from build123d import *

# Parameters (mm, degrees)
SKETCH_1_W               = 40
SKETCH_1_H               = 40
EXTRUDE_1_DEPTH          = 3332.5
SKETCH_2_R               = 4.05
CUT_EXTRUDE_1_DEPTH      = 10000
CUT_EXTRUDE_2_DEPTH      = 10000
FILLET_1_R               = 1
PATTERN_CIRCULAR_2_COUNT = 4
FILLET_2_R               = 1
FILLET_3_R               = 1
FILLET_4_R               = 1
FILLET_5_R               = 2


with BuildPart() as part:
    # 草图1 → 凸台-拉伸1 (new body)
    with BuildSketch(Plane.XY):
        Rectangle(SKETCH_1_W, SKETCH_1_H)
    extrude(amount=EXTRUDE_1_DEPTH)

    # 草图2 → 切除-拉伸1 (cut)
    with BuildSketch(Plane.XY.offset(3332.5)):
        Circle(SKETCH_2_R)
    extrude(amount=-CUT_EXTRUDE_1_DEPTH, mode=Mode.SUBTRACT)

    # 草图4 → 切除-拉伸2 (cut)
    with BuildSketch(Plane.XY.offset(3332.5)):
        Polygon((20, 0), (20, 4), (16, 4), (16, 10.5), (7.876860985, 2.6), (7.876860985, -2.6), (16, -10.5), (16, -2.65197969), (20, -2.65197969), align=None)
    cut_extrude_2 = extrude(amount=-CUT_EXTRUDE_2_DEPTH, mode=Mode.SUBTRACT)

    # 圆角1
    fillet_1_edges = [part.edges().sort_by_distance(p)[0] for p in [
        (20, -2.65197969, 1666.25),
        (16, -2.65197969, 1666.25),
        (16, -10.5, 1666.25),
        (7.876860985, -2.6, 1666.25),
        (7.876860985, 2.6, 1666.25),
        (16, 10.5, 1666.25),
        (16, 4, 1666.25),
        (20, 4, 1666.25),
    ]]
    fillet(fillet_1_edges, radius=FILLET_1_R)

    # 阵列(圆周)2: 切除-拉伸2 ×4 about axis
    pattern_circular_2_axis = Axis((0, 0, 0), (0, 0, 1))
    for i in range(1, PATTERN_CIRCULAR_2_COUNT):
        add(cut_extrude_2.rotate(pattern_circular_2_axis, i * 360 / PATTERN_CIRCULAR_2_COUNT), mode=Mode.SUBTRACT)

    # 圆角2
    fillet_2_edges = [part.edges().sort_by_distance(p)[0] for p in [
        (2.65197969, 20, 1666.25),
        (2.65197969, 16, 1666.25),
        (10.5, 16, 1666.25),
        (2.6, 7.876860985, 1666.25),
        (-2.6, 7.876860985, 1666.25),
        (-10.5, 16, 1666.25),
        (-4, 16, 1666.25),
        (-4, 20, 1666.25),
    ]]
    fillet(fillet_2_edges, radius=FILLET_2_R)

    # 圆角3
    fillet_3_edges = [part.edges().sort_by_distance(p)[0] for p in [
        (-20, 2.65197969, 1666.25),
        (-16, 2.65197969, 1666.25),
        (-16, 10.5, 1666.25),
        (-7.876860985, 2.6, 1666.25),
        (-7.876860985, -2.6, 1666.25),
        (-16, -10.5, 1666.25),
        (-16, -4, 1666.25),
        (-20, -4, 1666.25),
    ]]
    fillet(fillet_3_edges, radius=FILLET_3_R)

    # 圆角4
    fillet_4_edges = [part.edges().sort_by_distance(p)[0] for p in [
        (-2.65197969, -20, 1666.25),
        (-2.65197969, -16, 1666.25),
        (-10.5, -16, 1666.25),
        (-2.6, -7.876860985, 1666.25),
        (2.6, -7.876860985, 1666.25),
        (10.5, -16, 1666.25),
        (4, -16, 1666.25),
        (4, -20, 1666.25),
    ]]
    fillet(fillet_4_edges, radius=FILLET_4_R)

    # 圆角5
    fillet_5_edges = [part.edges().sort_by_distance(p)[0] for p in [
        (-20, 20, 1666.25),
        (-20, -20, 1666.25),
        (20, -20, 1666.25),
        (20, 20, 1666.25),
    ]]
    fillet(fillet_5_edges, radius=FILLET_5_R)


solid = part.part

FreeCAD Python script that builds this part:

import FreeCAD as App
import Part
import Sketcher


def edges_at(feature, points):
    """Names of the edges that pass closest to the given points."""
    edges = feature.Shape.Edges
    near = lambda p: min(range(len(edges)), key=lambda i: edges[i].distToShape(Part.Vertex(*p))[0])
    return sorted({f"Edge{near(p) + 1}" for p in points})

doc = App.newDocument("Part")
params = doc.addObject("Spreadsheet::Sheet", "Params")
for row, (alias, value) in enumerate([
    ("sketch1_width", "40 mm"),
    ("pad1_length", "3332.5 mm"),
    ("sketch2_diameter", "8.1 mm"),
    ("pocket1_length", "10000 mm"),
    ("sketch3_width", "4 mm"),
    ("sketch3_height", "6.5 mm"),
    ("sketch3_height2", "5.2 mm"),
    ("pocket2_length", "10000 mm"),
    ("fillet_radius", "1 mm"),
    ("fillet2_radius", "1 mm"),
    ("fillet3_radius", "1 mm"),
    ("fillet4_radius", "1 mm"),
    ("fillet5_radius", "2 mm"),
], start=1):
    params.set(f"A{row}", alias)
    params.set(f"B{row}", "=" + value)
    params.setAlias(f"B{row}", alias)

body = doc.addObject("PartDesign::Body", "Body")

# Sketch on XY plane
sketch1 = doc.addObject("Sketcher::SketchObject", "Sketch")
body.addObject(sketch1)
sketch1.AttachmentSupport = (doc.XY_Plane, [""])
sketch1.MapMode = "FlatFace"
sketch1.addGeometry(Part.LineSegment(App.Vector(-20, 20, 0), App.Vector(-20, -20, 0)), False)
sketch1.addGeometry(Part.LineSegment(App.Vector(-20, -20, 0), App.Vector(20, -20, 0)), False)
sketch1.addGeometry(Part.LineSegment(App.Vector(20, -20, 0), App.Vector(20, 20, 0)), False)
sketch1.addGeometry(Part.LineSegment(App.Vector(20, 20, 0), App.Vector(-20, 20, 0)), False)
sketch1.addConstraint(Sketcher.Constraint("Coincident", 0, 2, 1, 1))
sketch1.addConstraint(Sketcher.Constraint("Coincident", 1, 2, 2, 1))
sketch1.addConstraint(Sketcher.Constraint("Coincident", 2, 2, 3, 1))
sketch1.addConstraint(Sketcher.Constraint("Coincident", 3, 2, 0, 1))
sketch1.addConstraint(Sketcher.Constraint("Vertical", 0))
sketch1.addConstraint(Sketcher.Constraint("Horizontal", 1))
sketch1.addConstraint(Sketcher.Constraint("Vertical", 2))
sketch1.addConstraint(Sketcher.Constraint("Horizontal", 3))
sketch1.addConstraint(Sketcher.Constraint("Symmetric", 0, 2, 2, 2, -1, 1))
sketch1.addConstraint(Sketcher.Constraint("Equal", 3, 0))
sketch1.addConstraint(Sketcher.Constraint("DistanceX", 1, 1, 1, 2, 40.0))
sketch1.setExpression("Constraints[10]", "Params.sketch1_width")
pad1 = doc.addObject("PartDesign::Pad", "Pad")
body.addObject(pad1)
pad1.Profile = sketch1
pad1.setExpression("Length", "Params.pad1_length")

# Sketch on XY plane
sketch2 = doc.addObject("Sketcher::SketchObject", "Sketch001")
body.addObject(sketch2)
sketch2.AttachmentSupport = (doc.XY_Plane, [""])
sketch2.MapMode = "FlatFace"
sketch2.AttachmentOffset = App.Placement(App.Vector(0, 0, 3332.5), App.Rotation())
sketch2.addGeometry(Part.Circle(App.Vector(0, 0, 0), App.Vector(0, 0, 1), 4), False)
sketch2.addConstraint(Sketcher.Constraint("Coincident", 0, 3, -1, 1))
sketch2.addConstraint(Sketcher.Constraint("Diameter", 0, 8.1))
sketch2.setExpression("Constraints[1]", "Params.sketch2_diameter")
pocket1 = doc.addObject("PartDesign::Pocket", "Pocket")
body.addObject(pocket1)
pocket1.Profile = sketch2
pocket1.setExpression("Length", "Params.pocket1_length")

# Sketch on XY plane
sketch3 = doc.addObject("Sketcher::SketchObject", "Sketch002")
body.addObject(sketch3)
sketch3.AttachmentSupport = (doc.XY_Plane, [""])
sketch3.MapMode = "FlatFace"
sketch3.AttachmentOffset = App.Placement(App.Vector(0, 0, 3332.5), App.Rotation())
sketch3.addGeometry(Part.LineSegment(App.Vector(20, 4, 0), App.Vector(16, 4, 0)), False)
sketch3.addGeometry(Part.LineSegment(App.Vector(16, 4, 0), App.Vector(16, 10.5, 0)), False)
sketch3.addGeometry(Part.LineSegment(App.Vector(16, 10.5, 0), App.Vector(7.9, 2.6, 0)), False)
sketch3.addGeometry(Part.LineSegment(App.Vector(7.9, 2.6, 0), App.Vector(7.9, -2.6, 0)), False)
sketch3.addGeometry(Part.LineSegment(App.Vector(7.9, -2.6, 0), App.Vector(16, -10.5, 0)), False)
sketch3.addGeometry(Part.LineSegment(App.Vector(16, -10.5, 0), App.Vector(16, -2.7, 0)), False)
sketch3.addGeometry(Part.LineSegment(App.Vector(16, -2.7, 0), App.Vector(20, -2.7, 0)), False)
sketch3.addGeometry(Part.LineSegment(App.Vector(20, -2.7, 0), App.Vector(20, 4, 0)), False)
sketch3.addConstraint(Sketcher.Constraint("Coincident", 0, 2, 1, 1))
sketch3.addConstraint(Sketcher.Constraint("Coincident", 1, 2, 2, 1))
sketch3.addConstraint(Sketcher.Constraint("Coincident", 2, 2, 3, 1))
sketch3.addConstraint(Sketcher.Constraint("Coincident", 3, 2, 4, 1))
sketch3.addConstraint(Sketcher.Constraint("Coincident", 4, 2, 5, 1))
sketch3.addConstraint(Sketcher.Constraint("Coincident", 5, 2, 6, 1))
sketch3.addConstraint(Sketcher.Constraint("Coincident", 6, 2, 7, 1))
sketch3.addConstraint(Sketcher.Constraint("Coincident", 7, 2, 0, 1))
sketch3.addConstraint(Sketcher.Constraint("Horizontal", 0))
sketch3.addConstraint(Sketcher.Constraint("Vertical", 1))
sketch3.addConstraint(Sketcher.Constraint("Vertical", 3))
sketch3.addConstraint(Sketcher.Constraint("Vertical", 5))
sketch3.addConstraint(Sketcher.Constraint("Horizontal", 6))
sketch3.addConstraint(Sketcher.Constraint("Vertical", 7))
sketch3.addConstraint(Sketcher.Constraint("Symmetric", 1, 2, 4, 2, -1))
sketch3.addConstraint(Sketcher.Constraint("Equal", 2, 4))
sketch3.addConstraint(Sketcher.Constraint("DistanceX", 0, 2, 0, 1, 4.0))
sketch3.addConstraint(Sketcher.Constraint("DistanceY", 1, 1, 1, 2, 6.5))
sketch3.addConstraint(Sketcher.Constraint("DistanceY", 3, 2, 3, 1, 5.2))
sketch3.addConstraint(Sketcher.Constraint("DistanceX", -1, 1, 0, 2, 16.0))
sketch3.addConstraint(Sketcher.Constraint("DistanceY", -1, 1, 0, 2, 4.0))
sketch3.addConstraint(Sketcher.Constraint("DistanceY", 5, 1, 5, 2, 7.84802))
sketch3.addConstraint(Sketcher.Constraint("Distance", 2, 11.331169))
sketch3.setExpression("Constraints[16]", "Params.sketch3_width")
sketch3.setExpression("Constraints[17]", "Params.sketch3_height")
sketch3.setExpression("Constraints[18]", "Params.sketch3_height2")
pocket2 = doc.addObject("PartDesign::Pocket", "Pocket001")
body.addObject(pocket2)
pocket2.Profile = sketch3
pocket2.setExpression("Length", "Params.pocket2_length")
doc.recompute()

fillet = doc.addObject("PartDesign::Fillet", "Fillet")
body.addObject(fillet)
fillet.Base = (pocket2, edges_at(pocket2, [
    (20, -2.652, 1666.25),
    (16, -2.652, 1666.25),
    (16, -10.5, 1666.25),
    (7.877, -2.6, 1666.25),
    (7.877, 2.6, 1666.25),
    (16, 10.5, 1666.25),
    (16, 4, 1666.25),
    (20, 4, 1666.25),
]))
fillet.setExpression("Radius", "Params.fillet_radius")
doc.recompute()

polarpattern = doc.addObject("PartDesign::PolarPattern", "PolarPattern")
body.addObject(polarpattern)
polarpattern.Originals = [pocket2]
polarpattern.Axis = (doc.Z_Axis, [""])
polarpattern.Angle = 360
polarpattern.Occurrences = 4
body.Tip = polarpattern
doc.recompute()

fillet2 = doc.addObject("PartDesign::Fillet", "Fillet001")
body.addObject(fillet2)
fillet2.Base = (polarpattern, edges_at(polarpattern, [
    (2.652, 20, 1666.25),
    (2.652, 16, 1666.25),
    (10.5, 16, 1666.25),
    (2.6, 7.877, 1666.25),
    (-2.6, 7.877, 1666.25),
    (-10.5, 16, 1666.25),
    (-4, 16, 1666.25),
    (-4, 20, 1666.25),
]))
fillet2.setExpression("Radius", "Params.fillet2_radius")
doc.recompute()

fillet3 = doc.addObject("PartDesign::Fillet", "Fillet002")
body.addObject(fillet3)
fillet3.Base = (fillet2, edges_at(fillet2, [
    (-20, 2.652, 1666.25),
    (-16, 2.652, 1666.25),
    (-16, 10.5, 1666.25),
    (-7.877, 2.6, 1666.25),
    (-7.877, -2.6, 1666.25),
    (-16, -10.5, 1666.25),
    (-16, -4, 1666.25),
    (-20, -4, 1666.25),
]))
fillet3.setExpression("Radius", "Params.fillet3_radius")
doc.recompute()

fillet4 = doc.addObject("PartDesign::Fillet", "Fillet003")
body.addObject(fillet4)
fillet4.Base = (fillet3, edges_at(fillet3, [
    (-2.652, -20, 1666.25),
    (-2.652, -16, 1666.25),
    (-10.5, -16, 1666.25),
    (-2.6, -7.877, 1666.25),
    (2.6, -7.877, 1666.25),
    (10.5, -16, 1666.25),
    (4, -16, 1666.25),
    (4, -20, 1666.25),
]))
fillet4.setExpression("Radius", "Params.fillet4_radius")
doc.recompute()

fillet5 = doc.addObject("PartDesign::Fillet", "Fillet004")
body.addObject(fillet5)
fillet5.Base = (fillet4, edges_at(fillet4, [
    (-20, 20, 1666.25),
    (-20, -20, 1666.25),
    (20, -20, 1666.25),
    (20, 20, 1666.25),
]))
fillet5.setExpression("Radius", "Params.fillet5_radius")

doc.recompute()
